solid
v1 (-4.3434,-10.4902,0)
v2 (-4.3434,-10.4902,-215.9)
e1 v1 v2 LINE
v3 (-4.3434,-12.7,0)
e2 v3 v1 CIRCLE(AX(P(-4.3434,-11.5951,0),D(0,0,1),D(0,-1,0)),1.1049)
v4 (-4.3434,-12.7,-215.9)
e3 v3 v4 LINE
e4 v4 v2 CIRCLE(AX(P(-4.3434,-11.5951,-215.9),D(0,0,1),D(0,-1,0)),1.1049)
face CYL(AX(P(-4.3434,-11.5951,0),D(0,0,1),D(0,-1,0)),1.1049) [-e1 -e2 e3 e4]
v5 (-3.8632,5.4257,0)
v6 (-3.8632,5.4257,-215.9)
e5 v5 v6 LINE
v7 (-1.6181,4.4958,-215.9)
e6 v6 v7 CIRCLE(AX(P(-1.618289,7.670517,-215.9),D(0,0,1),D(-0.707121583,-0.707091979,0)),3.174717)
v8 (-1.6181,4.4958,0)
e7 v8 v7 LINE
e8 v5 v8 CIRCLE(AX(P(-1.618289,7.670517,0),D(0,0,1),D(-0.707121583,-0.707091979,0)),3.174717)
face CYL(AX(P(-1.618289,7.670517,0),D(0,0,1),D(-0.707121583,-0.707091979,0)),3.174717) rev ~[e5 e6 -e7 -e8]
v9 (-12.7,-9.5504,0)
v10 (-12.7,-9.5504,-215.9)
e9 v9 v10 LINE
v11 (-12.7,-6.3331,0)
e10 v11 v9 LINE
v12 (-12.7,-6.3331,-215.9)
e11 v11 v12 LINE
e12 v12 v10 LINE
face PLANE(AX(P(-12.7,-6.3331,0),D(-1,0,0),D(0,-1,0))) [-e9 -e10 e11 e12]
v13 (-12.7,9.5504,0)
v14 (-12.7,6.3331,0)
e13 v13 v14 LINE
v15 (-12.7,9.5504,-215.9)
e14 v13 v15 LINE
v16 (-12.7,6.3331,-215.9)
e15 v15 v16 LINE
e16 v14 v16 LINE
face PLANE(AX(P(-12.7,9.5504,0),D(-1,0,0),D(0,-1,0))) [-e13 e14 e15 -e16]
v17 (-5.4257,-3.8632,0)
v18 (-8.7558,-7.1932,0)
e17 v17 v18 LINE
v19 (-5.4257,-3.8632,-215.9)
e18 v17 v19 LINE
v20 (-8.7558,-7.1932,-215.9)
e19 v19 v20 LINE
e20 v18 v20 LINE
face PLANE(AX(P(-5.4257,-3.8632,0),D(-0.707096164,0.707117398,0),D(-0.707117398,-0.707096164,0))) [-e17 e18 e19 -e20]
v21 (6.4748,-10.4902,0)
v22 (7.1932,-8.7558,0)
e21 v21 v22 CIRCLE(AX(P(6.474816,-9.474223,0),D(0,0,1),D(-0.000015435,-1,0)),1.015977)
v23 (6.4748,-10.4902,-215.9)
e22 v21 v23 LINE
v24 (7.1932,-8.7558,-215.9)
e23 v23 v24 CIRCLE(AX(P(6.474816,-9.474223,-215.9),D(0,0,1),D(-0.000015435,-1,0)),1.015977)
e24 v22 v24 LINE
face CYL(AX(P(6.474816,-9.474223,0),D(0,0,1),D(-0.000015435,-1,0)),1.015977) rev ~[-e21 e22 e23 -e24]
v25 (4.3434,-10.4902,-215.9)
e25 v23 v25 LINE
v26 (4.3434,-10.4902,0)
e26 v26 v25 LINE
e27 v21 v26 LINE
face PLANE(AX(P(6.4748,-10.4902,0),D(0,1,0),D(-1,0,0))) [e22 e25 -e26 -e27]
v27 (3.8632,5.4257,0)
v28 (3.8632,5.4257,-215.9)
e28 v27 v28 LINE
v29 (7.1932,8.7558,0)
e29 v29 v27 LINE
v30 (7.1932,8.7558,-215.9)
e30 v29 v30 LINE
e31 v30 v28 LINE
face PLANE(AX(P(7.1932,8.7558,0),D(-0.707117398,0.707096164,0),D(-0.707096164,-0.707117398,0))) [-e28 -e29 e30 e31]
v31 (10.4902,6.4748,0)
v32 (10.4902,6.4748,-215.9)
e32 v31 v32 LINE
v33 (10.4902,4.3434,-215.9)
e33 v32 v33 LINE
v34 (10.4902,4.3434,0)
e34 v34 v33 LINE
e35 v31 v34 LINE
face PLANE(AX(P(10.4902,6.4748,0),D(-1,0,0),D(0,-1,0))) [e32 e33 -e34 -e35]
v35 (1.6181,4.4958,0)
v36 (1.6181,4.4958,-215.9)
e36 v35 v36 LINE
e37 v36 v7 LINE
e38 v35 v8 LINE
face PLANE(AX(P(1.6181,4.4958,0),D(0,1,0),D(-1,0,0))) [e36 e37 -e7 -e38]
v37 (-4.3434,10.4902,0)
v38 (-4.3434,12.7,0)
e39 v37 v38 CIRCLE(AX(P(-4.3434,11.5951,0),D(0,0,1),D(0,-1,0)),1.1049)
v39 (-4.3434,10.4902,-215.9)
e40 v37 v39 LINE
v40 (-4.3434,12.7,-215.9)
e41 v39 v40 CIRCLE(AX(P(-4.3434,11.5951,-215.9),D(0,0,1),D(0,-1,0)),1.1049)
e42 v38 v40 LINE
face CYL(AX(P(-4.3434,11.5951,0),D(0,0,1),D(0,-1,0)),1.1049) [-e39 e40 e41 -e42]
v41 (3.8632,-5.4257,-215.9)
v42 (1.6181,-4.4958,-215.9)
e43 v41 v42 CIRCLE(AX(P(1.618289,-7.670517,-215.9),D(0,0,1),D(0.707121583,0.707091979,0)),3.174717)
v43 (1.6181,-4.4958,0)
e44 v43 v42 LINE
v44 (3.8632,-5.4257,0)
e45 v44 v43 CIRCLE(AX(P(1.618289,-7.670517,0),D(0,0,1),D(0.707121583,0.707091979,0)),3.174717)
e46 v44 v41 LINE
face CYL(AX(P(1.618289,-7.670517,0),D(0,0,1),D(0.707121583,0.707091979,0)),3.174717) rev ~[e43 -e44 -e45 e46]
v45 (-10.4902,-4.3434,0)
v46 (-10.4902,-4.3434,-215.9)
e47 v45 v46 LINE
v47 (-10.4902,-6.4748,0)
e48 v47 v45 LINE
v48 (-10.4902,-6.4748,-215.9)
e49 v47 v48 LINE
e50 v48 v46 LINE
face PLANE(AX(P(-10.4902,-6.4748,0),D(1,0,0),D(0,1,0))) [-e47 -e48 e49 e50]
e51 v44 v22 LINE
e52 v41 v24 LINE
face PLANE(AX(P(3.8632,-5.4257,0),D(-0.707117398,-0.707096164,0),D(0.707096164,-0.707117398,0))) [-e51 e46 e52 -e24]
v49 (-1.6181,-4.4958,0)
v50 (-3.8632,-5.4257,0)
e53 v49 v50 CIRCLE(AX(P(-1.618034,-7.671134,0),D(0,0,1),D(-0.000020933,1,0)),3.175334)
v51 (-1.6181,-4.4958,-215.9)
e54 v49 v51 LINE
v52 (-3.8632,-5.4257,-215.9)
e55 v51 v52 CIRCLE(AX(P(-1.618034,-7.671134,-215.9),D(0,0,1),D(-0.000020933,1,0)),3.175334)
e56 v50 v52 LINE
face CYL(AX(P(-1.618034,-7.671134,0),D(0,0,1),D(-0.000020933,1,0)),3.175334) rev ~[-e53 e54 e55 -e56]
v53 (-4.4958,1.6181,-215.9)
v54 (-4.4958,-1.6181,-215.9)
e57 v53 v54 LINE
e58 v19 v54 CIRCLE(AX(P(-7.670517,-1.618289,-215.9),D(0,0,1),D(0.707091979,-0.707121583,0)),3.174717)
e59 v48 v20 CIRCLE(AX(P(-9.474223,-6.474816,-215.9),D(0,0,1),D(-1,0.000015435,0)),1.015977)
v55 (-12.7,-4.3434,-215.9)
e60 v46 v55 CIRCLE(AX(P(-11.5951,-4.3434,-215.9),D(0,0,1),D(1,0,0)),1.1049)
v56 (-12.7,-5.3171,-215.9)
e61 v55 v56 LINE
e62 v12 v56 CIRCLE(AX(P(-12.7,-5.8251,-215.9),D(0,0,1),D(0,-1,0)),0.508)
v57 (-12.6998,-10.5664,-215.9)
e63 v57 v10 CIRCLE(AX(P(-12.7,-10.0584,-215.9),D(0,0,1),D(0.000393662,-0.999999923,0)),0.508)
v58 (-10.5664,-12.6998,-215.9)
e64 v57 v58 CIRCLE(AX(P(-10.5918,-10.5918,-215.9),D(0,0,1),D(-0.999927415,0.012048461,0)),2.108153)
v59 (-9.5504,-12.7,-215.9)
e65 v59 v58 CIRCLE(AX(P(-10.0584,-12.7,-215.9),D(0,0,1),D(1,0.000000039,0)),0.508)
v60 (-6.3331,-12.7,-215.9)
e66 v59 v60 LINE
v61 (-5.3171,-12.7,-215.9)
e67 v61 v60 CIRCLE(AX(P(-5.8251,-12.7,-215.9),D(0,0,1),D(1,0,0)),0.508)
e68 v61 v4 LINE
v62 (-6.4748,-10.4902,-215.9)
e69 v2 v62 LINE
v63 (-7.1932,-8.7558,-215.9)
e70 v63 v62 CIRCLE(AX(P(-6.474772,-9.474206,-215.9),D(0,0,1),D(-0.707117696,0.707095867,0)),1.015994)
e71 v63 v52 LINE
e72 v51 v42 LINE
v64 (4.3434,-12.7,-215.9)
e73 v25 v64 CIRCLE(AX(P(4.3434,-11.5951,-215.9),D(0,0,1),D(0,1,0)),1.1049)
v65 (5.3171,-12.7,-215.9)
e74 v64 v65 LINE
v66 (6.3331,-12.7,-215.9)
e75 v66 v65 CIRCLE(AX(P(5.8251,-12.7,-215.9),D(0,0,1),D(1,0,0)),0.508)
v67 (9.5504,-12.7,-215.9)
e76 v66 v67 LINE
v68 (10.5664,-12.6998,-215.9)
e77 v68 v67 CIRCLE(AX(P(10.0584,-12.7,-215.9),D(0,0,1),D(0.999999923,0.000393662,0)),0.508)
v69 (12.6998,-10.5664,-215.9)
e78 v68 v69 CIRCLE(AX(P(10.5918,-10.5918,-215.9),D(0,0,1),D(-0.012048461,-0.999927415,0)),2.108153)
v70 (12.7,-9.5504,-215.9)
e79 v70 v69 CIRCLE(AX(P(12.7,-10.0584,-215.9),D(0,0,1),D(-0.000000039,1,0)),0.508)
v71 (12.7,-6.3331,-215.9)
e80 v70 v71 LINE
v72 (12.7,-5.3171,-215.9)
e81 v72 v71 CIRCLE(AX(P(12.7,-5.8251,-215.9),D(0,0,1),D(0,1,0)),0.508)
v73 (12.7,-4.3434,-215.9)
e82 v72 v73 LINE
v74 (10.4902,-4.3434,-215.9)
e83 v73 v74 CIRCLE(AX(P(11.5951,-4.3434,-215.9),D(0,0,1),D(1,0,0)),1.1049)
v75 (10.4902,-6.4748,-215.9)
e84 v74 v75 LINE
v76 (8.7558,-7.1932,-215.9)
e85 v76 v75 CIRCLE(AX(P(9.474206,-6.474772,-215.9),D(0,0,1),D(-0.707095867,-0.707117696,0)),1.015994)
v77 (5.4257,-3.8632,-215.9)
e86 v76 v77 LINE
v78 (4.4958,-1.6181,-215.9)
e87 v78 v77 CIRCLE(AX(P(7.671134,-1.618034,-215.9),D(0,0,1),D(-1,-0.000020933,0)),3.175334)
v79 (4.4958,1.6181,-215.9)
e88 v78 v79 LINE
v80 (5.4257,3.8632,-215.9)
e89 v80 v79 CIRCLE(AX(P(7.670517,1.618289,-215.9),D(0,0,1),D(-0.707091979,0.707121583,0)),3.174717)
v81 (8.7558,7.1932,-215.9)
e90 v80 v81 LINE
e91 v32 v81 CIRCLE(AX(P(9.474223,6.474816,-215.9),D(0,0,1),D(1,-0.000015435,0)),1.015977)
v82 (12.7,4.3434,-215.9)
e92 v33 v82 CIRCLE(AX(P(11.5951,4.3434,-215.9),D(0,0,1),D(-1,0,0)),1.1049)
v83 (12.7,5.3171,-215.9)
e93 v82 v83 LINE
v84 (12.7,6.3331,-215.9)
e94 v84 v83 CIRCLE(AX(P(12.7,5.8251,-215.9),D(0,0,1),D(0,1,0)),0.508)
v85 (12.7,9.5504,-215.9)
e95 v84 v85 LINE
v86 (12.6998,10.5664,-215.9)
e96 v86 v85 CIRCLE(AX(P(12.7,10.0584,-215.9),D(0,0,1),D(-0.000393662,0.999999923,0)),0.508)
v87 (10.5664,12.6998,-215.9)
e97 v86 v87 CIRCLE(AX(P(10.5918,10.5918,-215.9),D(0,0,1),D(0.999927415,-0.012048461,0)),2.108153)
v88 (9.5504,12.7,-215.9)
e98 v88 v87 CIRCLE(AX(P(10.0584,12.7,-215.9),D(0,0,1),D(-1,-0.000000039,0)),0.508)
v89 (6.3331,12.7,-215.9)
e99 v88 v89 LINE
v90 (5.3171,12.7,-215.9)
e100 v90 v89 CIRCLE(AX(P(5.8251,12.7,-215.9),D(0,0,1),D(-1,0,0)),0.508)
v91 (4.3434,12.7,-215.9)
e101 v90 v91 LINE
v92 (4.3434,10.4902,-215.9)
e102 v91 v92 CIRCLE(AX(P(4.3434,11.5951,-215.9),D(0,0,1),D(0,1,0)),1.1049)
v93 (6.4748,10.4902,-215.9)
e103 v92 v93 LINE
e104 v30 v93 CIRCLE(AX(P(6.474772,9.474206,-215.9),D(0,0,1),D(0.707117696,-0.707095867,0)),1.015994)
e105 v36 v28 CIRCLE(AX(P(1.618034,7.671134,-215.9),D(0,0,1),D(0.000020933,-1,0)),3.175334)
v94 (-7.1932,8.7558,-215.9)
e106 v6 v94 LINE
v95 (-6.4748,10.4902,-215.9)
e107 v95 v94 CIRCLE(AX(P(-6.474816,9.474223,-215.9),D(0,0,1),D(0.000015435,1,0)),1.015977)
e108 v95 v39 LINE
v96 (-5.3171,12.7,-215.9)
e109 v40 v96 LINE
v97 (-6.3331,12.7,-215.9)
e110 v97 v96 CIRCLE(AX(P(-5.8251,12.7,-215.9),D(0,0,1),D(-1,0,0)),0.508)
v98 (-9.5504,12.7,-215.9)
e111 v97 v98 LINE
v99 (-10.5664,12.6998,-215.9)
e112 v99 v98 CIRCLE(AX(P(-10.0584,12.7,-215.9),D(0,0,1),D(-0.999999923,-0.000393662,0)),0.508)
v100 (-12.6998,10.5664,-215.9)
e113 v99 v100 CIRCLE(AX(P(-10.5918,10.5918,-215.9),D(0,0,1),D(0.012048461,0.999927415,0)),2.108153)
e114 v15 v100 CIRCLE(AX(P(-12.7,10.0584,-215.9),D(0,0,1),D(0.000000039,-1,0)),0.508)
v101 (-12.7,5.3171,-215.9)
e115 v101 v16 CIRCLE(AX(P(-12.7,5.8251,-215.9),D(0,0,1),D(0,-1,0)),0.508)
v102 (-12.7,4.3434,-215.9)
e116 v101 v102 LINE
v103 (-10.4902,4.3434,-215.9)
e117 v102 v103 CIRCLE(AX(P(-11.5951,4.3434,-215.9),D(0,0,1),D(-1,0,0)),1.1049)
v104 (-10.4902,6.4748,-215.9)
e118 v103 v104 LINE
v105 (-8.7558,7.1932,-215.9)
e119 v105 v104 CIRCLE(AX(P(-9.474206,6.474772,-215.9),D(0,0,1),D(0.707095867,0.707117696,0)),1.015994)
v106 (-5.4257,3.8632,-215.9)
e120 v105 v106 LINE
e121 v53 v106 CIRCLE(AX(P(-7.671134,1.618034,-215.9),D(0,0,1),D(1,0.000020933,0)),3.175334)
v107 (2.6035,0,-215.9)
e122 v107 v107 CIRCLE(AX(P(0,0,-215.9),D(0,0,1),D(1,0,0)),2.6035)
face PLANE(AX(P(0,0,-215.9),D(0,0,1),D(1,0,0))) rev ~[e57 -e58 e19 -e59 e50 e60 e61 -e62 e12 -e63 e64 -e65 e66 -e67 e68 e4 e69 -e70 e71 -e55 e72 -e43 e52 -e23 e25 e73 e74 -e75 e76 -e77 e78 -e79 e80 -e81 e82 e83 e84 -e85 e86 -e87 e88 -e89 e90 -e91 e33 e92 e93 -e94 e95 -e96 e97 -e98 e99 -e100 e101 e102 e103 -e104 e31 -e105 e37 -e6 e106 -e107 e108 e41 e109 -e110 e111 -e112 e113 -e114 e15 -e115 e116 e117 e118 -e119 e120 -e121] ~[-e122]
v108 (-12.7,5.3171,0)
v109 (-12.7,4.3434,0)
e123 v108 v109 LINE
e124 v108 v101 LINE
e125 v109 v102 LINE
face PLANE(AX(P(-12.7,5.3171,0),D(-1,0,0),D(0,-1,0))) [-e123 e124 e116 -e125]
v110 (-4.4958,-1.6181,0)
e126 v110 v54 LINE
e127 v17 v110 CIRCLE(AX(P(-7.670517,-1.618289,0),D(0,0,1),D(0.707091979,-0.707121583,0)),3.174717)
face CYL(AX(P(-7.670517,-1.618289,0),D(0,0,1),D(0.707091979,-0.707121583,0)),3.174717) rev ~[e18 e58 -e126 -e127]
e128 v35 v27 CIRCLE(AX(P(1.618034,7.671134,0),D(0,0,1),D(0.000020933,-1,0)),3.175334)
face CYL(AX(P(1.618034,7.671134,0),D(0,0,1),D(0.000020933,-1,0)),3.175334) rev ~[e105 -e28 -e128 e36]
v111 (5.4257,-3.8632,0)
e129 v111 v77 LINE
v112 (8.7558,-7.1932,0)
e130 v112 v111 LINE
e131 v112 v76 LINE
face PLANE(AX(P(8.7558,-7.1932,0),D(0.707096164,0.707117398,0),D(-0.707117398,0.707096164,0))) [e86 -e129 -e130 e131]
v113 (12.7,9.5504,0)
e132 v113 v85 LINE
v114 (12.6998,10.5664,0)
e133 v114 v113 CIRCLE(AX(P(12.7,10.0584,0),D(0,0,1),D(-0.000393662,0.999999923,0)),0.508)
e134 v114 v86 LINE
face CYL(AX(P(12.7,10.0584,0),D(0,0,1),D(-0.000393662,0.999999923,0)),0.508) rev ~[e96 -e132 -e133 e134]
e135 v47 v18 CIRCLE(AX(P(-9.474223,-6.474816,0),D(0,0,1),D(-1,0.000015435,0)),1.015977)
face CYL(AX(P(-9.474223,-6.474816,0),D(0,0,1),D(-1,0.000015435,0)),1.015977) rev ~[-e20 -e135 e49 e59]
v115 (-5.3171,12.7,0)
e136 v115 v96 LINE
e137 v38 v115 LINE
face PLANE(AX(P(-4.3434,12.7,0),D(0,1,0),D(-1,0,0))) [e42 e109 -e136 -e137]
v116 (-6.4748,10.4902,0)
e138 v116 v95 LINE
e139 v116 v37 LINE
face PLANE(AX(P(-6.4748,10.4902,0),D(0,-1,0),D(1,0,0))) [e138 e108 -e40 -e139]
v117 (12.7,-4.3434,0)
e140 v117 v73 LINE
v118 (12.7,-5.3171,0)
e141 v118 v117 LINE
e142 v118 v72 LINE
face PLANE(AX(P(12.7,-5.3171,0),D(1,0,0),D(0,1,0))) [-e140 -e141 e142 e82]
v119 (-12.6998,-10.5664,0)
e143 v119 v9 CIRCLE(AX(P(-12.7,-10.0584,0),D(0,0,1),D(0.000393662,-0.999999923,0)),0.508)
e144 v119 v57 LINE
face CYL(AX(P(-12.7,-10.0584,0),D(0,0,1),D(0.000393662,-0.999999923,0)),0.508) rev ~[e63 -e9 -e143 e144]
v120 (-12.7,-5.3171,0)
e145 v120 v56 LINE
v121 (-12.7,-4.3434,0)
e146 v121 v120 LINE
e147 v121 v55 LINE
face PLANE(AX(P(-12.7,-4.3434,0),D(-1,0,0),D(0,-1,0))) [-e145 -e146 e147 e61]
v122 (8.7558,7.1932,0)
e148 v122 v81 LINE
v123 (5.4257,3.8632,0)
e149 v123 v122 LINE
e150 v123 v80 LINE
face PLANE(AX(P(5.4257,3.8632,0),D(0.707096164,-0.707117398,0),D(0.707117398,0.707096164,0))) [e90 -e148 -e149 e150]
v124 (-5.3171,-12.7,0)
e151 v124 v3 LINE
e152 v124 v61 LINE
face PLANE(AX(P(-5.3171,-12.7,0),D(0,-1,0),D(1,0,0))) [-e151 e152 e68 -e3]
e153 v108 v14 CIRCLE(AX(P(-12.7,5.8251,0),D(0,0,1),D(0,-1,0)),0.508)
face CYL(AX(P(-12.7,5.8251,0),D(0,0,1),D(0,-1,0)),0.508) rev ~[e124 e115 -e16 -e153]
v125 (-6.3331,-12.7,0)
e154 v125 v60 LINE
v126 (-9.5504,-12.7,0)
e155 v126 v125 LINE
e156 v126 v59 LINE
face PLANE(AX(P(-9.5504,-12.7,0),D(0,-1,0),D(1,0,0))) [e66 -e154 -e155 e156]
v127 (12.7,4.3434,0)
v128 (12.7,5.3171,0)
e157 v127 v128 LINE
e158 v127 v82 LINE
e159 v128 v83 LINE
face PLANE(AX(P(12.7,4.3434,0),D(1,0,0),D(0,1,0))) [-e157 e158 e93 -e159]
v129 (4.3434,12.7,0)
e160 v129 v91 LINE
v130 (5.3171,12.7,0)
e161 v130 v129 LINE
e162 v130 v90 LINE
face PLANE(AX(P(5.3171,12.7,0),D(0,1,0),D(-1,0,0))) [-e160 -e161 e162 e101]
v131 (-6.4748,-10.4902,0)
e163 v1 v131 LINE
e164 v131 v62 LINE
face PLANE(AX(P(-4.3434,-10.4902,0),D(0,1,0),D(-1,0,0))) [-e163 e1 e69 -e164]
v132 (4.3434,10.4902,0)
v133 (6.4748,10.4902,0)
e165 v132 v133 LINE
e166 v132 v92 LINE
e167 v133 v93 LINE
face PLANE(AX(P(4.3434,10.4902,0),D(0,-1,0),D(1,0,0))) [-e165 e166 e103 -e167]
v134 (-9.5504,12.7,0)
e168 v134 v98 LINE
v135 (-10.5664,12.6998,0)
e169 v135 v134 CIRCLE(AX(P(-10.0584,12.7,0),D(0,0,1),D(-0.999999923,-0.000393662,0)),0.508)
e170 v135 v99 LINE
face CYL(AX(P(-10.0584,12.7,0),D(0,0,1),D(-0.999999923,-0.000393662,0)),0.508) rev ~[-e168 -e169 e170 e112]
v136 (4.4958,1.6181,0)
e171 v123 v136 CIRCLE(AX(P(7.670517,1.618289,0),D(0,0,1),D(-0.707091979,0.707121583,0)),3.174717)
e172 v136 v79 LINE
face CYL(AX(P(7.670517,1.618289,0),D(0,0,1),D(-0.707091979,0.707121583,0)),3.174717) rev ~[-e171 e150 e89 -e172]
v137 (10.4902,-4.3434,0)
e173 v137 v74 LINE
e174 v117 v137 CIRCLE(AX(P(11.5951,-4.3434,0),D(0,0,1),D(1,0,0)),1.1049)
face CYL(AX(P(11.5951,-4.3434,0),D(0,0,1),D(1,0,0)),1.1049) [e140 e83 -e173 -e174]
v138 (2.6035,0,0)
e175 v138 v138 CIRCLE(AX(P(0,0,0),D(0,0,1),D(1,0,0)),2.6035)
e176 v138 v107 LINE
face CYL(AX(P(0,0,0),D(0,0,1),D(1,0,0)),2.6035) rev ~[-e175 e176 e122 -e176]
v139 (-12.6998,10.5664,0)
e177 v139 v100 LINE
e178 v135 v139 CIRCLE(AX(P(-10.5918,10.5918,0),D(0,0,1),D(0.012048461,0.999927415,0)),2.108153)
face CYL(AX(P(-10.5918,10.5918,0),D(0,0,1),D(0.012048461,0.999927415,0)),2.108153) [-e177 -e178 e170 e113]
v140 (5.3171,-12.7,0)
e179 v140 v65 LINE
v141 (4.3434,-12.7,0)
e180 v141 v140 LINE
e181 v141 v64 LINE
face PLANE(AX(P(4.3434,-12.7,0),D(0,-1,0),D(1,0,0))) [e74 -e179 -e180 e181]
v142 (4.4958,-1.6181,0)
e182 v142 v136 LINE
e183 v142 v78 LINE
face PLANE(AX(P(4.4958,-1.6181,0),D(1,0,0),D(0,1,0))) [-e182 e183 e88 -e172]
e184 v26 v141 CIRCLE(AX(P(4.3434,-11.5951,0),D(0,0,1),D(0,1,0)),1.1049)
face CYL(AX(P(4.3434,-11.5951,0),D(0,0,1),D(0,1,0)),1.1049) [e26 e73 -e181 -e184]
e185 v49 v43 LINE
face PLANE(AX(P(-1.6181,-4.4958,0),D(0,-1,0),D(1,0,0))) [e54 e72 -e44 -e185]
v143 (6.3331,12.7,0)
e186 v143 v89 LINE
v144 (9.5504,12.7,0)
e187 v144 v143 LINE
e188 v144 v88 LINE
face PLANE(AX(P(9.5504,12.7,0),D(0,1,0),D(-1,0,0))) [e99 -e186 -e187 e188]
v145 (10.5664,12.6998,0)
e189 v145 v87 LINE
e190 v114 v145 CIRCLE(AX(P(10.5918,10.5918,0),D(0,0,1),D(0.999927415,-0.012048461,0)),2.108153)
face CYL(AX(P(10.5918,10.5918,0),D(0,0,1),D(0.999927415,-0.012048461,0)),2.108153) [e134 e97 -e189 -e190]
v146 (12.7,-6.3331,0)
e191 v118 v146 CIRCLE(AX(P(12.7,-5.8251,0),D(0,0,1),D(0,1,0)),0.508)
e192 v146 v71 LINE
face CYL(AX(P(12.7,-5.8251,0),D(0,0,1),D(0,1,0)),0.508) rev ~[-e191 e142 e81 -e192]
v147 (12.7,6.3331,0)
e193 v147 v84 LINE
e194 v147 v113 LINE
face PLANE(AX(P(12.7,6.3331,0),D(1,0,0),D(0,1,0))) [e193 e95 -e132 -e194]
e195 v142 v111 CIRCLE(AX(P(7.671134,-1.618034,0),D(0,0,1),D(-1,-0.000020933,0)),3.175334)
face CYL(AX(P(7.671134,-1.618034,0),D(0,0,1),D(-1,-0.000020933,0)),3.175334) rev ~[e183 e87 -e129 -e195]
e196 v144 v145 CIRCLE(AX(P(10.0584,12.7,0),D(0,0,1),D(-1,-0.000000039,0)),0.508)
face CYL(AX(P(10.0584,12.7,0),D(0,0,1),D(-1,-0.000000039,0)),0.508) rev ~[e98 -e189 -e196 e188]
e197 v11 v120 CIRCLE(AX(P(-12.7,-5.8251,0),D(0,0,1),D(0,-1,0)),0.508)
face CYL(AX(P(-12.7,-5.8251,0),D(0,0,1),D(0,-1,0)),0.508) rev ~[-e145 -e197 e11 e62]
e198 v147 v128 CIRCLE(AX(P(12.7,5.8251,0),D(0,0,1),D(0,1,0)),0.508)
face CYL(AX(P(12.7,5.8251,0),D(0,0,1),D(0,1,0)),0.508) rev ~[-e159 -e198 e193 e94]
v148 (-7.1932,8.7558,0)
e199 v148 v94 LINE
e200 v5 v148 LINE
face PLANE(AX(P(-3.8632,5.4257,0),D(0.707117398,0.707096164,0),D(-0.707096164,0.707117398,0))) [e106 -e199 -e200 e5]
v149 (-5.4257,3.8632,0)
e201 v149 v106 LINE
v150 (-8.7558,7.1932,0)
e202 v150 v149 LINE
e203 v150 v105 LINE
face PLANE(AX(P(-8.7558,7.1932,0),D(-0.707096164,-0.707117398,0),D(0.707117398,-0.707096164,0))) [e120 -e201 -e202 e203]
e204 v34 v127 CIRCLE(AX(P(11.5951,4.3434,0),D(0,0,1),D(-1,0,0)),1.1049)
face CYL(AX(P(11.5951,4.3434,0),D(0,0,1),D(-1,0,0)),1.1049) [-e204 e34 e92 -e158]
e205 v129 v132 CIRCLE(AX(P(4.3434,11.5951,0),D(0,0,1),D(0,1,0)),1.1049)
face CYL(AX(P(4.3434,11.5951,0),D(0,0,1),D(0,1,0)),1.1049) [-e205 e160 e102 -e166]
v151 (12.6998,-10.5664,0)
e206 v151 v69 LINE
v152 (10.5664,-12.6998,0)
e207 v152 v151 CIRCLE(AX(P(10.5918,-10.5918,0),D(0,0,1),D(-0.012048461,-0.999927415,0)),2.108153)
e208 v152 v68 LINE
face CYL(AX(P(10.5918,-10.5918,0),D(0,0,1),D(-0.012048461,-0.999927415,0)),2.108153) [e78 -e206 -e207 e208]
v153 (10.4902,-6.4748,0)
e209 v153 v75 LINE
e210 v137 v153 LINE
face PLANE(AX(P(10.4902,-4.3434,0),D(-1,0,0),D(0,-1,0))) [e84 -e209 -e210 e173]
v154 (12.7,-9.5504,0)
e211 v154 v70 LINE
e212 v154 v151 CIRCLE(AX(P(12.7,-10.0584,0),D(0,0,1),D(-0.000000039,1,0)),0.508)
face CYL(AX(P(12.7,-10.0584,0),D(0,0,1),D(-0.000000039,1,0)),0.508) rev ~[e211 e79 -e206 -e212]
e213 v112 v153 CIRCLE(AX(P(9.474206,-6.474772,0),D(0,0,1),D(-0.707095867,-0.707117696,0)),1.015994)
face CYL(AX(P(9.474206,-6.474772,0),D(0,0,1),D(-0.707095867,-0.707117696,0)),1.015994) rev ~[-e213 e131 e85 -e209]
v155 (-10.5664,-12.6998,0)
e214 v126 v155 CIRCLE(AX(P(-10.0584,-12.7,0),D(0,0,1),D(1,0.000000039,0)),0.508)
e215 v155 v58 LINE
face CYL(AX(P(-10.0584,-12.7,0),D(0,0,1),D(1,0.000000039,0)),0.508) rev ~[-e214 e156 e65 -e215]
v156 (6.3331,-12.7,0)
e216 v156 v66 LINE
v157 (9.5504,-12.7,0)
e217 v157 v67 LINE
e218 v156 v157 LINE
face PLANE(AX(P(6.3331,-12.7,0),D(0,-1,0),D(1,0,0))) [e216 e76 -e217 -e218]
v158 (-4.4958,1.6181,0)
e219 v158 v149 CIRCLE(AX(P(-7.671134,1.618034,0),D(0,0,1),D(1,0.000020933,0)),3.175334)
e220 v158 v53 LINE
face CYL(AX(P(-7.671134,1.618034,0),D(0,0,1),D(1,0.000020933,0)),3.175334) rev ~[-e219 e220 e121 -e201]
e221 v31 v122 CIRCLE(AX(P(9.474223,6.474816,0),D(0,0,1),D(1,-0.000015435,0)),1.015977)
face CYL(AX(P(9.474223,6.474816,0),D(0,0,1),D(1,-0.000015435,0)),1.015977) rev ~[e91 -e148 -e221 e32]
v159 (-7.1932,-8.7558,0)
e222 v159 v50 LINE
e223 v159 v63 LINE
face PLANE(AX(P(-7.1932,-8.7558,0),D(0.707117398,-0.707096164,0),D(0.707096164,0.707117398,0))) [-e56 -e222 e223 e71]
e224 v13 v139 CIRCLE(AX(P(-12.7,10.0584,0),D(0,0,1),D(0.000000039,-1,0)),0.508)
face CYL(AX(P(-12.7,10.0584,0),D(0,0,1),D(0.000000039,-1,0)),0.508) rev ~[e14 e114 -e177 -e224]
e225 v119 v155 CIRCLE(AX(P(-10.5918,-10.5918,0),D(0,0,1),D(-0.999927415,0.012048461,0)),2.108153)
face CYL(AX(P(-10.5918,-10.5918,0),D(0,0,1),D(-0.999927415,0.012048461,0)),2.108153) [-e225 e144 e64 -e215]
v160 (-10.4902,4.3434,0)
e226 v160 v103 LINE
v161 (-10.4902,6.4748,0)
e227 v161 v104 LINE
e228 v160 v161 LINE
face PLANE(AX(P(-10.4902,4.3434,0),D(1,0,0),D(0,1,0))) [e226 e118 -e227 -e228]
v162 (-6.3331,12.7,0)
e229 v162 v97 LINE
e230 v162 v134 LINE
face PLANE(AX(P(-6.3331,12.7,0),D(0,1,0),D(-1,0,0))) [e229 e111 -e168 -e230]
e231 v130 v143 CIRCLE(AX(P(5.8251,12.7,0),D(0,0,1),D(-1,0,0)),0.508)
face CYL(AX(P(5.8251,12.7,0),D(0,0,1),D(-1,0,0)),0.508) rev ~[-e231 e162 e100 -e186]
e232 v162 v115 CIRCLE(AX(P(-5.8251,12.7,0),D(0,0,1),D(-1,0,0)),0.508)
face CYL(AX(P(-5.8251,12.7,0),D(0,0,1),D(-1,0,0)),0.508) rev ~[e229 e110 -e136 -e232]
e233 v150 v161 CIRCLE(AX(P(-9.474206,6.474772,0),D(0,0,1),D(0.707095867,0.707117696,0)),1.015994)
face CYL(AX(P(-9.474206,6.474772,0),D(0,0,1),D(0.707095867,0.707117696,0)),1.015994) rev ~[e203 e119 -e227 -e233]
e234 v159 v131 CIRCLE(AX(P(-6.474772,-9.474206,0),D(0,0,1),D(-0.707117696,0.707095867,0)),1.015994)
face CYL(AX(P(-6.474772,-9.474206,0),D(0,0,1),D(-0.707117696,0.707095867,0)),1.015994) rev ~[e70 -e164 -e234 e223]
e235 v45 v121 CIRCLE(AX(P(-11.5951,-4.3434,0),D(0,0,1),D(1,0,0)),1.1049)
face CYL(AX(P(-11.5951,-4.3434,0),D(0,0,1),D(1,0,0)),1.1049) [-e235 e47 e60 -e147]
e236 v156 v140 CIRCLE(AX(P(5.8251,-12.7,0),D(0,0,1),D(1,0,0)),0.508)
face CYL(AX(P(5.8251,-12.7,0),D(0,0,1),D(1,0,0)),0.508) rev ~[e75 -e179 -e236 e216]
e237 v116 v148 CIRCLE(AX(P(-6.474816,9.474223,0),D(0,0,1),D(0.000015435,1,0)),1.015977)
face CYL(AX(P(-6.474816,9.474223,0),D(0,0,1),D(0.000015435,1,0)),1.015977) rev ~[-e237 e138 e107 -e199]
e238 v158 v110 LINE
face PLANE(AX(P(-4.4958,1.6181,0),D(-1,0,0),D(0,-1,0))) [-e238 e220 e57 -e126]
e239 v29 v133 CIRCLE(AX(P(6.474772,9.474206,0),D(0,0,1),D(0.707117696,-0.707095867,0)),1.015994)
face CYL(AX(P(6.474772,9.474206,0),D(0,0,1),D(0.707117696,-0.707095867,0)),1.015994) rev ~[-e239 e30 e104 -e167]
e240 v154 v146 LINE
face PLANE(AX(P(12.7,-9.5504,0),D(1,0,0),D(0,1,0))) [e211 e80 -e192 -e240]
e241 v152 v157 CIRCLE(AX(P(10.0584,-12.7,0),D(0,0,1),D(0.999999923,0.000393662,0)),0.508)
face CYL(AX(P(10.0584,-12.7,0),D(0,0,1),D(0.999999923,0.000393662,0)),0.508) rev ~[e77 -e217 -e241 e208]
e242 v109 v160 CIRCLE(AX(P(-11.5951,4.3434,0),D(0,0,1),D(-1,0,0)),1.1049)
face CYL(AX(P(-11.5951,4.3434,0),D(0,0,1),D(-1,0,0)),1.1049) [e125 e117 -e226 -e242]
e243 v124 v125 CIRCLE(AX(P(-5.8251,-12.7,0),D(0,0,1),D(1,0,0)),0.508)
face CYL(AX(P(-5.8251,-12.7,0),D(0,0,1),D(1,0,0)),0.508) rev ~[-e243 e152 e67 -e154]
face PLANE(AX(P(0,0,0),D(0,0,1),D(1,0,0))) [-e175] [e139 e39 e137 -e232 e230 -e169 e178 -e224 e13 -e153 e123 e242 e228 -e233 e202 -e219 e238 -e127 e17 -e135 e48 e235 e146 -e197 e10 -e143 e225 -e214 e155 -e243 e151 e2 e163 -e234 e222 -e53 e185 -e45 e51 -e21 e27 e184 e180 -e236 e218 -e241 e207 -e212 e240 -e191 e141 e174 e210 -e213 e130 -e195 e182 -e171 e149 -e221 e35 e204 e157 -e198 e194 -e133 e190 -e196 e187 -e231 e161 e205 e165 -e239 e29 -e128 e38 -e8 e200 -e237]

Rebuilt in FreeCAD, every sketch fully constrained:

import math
import FreeCAD as App
import Part
import Sketcher
from FreeCAD import Vector
Q = App.Units.Quantity

doc = App.newDocument("Part")
params = doc.addObject("Spreadsheet::Sheet", "Params")
for row, (alias, value) in enumerate([
    ("sketch1_radius", "0.02 in"),
    ("sketch1_radius2", "0.04 in"),
    ("sketch1_diameter", "0.205 in"),
    ("sketch1_radius3", "0.083 in"),
    ("sketch1_radius4", "0.125 in"),
    ("pad1_length", "8.5 in"),
], start=1):
    params.set(f"A{row}", alias)
    params.set(f"B{row}", "=" + value)
    params.setAlias(f"B{row}", alias)

body = doc.addObject("PartDesign::Body", "Body")

# Sketch on XY plane
sketch1 = body.newObject("Sketcher::SketchObject", "Sketch")
sketch1.AttachmentSupport = (doc.getObject("XY_Plane"), [""])
sketch1.MapMode = "FlatFace"
sketch1.addGeometry([
    Part.ArcOfCircle(Part.Circle(Vector(-12.7, -10.1, 0), Vector(0, 0, 1), 0.5), math.radians(-90), math.radians(90)),  # 0
    Part.ArcOfCircle(Part.Circle(Vector(-10.6, -10.6, 0), Vector(0, 0, 1), 2.1), math.radians(179), math.radians(271)),  # 1
    Part.ArcOfCircle(Part.Circle(Vector(-10.1, -12.7, 0), Vector(0, 0, 1), 0.5), math.radians(0), math.radians(180)),  # 2
    Part.LineSegment(Vector(-9.6, -12.7, 0), Vector(-6.3, -12.7, 0)),  # 3
    Part.ArcOfCircle(Part.Circle(Vector(-5.8, -12.7, 0), Vector(0, 0, 1), 0.5), math.radians(0), math.radians(180)),  # 4
    Part.LineSegment(Vector(-5.3, -12.7, 0), Vector(-4.3, -12.7, 0)),  # 5
    Part.ArcOfCircle(Part.Circle(Vector(-4.3, -11.6, 0), Vector(0, 0, 1), 1.1), math.radians(-90), math.radians(90)),  # 6
    Part.LineSegment(Vector(-4.3, -10.5, 0), Vector(-6.5, -10.5, 0)),  # 7
    Part.ArcOfCircle(Part.Circle(Vector(-6.5, -9.5, 0), Vector(0, 0, 1), 1), math.radians(135), math.radians(270)),  # 8
    Part.LineSegment(Vector(-7.2, -8.8, 0), Vector(-3.9, -5.4, 0)),  # 9
    Part.ArcOfCircle(Part.Circle(Vector(-1.6, -7.7, 0), Vector(0, 0, 1), 3.2), math.radians(90), math.radians(135)),  # 10
    Part.LineSegment(Vector(-1.6, -4.5, 0), Vector(1.6, -4.5, 0)),  # 11
    Part.ArcOfCircle(Part.Circle(Vector(1.6, -7.7, 0), Vector(0, 0, 1), 3.2), math.radians(45), math.radians(90)),  # 12
    Part.LineSegment(Vector(3.9, -5.4, 0), Vector(7.2, -8.8, 0)),  # 13
    Part.ArcOfCircle(Part.Circle(Vector(6.5, -9.5, 0), Vector(0, 0, 1), 1), math.radians(-90), math.radians(45)),  # 14
    Part.LineSegment(Vector(6.5, -10.5, 0), Vector(4.3, -10.5, 0)),  # 15
    Part.ArcOfCircle(Part.Circle(Vector(4.3, -11.6, 0), Vector(0, 0, 1), 1.1), math.radians(90), math.radians(270)),  # 16
    Part.LineSegment(Vector(4.3, -12.7, 0), Vector(5.3, -12.7, 0)),  # 17
    Part.ArcOfCircle(Part.Circle(Vector(5.8, -12.7, 0), Vector(0, 0, 1), 0.5), math.radians(0), math.radians(180)),  # 18
    Part.LineSegment(Vector(6.3, -12.7, 0), Vector(9.6, -12.7, 0)),  # 19
    Part.ArcOfCircle(Part.Circle(Vector(10.1, -12.7, 0), Vector(0, 0, 1), 0.5), math.radians(0), math.radians(180)),  # 20
    Part.ArcOfCircle(Part.Circle(Vector(10.6, -10.6, 0), Vector(0, 0, 1), 2.1), math.radians(-91), math.radians(1)),  # 21
    Part.ArcOfCircle(Part.Circle(Vector(12.7, -10.1, 0), Vector(0, 0, 1), 0.5), math.radians(90), math.radians(270)),  # 22
    Part.LineSegment(Vector(12.7, -9.6, 0), Vector(12.7, -6.3, 0)),  # 23
    Part.ArcOfCircle(Part.Circle(Vector(12.7, -5.8, 0), Vector(0, 0, 1), 0.5), math.radians(90), math.radians(270)),  # 24
    Part.LineSegment(Vector(12.7, -5.3, 0), Vector(12.7, -4.3, 0)),  # 25
    Part.ArcOfCircle(Part.Circle(Vector(11.6, -4.3, 0), Vector(0, 0, 1), 1.1), math.radians(0), math.radians(180)),  # 26
    Part.LineSegment(Vector(10.5, -4.3, 0), Vector(10.5, -6.5, 0)),  # 27
    Part.ArcOfCircle(Part.Circle(Vector(9.5, -6.5, 0), Vector(0, 0, 1), 1), math.radians(-135), math.radians(0)),  # 28
    Part.LineSegment(Vector(8.8, -7.2, 0), Vector(5.4, -3.9, 0)),  # 29
    Part.ArcOfCircle(Part.Circle(Vector(7.7, -1.6, 0), Vector(0, 0, 1), 3.2), math.radians(180), math.radians(225)),  # 30
    Part.LineSegment(Vector(4.5, -1.6, 0), Vector(4.5, 1.6, 0)),  # 31
    Part.ArcOfCircle(Part.Circle(Vector(7.7, 1.6, 0), Vector(0, 0, 1), 3.2), math.radians(135), math.radians(180)),  # 32
    Part.LineSegment(Vector(5.4, 3.9, 0), Vector(8.8, 7.2, 0)),  # 33
    Part.ArcOfCircle(Part.Circle(Vector(9.5, 6.5, 0), Vector(0, 0, 1), 1), math.radians(0), math.radians(135)),  # 34
    Part.LineSegment(Vector(10.5, 6.5, 0), Vector(10.5, 4.3, 0)),  # 35
    Part.ArcOfCircle(Part.Circle(Vector(11.6, 4.3, 0), Vector(0, 0, 1), 1.1), math.radians(180), math.radians(360)),  # 36
    Part.LineSegment(Vector(12.7, 4.3, 0), Vector(12.7, 5.3, 0)),  # 37
    Part.ArcOfCircle(Part.Circle(Vector(12.7, 5.8, 0), Vector(0, 0, 1), 0.5), math.radians(90), math.radians(270)),  # 38
    Part.LineSegment(Vector(12.7, 6.3, 0), Vector(12.7, 9.6, 0)),  # 39
    Part.ArcOfCircle(Part.Circle(Vector(12.7, 10.1, 0), Vector(0, 0, 1), 0.5), math.radians(90), math.radians(270)),  # 40
    Part.ArcOfCircle(Part.Circle(Vector(10.6, 10.6, 0), Vector(0, 0, 1), 2.1), math.radians(-1), math.radians(91)),  # 41
    Part.ArcOfCircle(Part.Circle(Vector(10.1, 12.7, 0), Vector(0, 0, 1), 0.5), math.radians(180), math.radians(360)),  # 42
    Part.LineSegment(Vector(9.6, 12.7, 0), Vector(6.3, 12.7, 0)),  # 43
    Part.ArcOfCircle(Part.Circle(Vector(5.8, 12.7, 0), Vector(0, 0, 1), 0.5), math.radians(180), math.radians(360)),  # 44
    Part.LineSegment(Vector(5.3, 12.7, 0), Vector(4.3, 12.7, 0)),  # 45
    Part.ArcOfCircle(Part.Circle(Vector(4.3, 11.6, 0), Vector(0, 0, 1), 1.1), math.radians(90), math.radians(270)),  # 46
    Part.LineSegment(Vector(4.3, 10.5, 0), Vector(6.5, 10.5, 0)),  # 47
    Part.ArcOfCircle(Part.Circle(Vector(6.5, 9.5, 0), Vector(0, 0, 1), 1), math.radians(-45), math.radians(90)),  # 48
    Part.LineSegment(Vector(7.2, 8.8, 0), Vector(3.9, 5.4, 0)),  # 49
    Part.ArcOfCircle(Part.Circle(Vector(1.6, 7.7, 0), Vector(0, 0, 1), 3.2), math.radians(-90), math.radians(-45)),  # 50
    Part.LineSegment(Vector(1.6, 4.5, 0), Vector(-1.6, 4.5, 0)),  # 51
    Part.ArcOfCircle(Part.Circle(Vector(-1.6, 7.7, 0), Vector(0, 0, 1), 3.2), math.radians(-135), math.radians(-90)),  # 52
    Part.LineSegment(Vector(-3.9, 5.4, 0), Vector(-7.2, 8.8, 0)),  # 53
    Part.ArcOfCircle(Part.Circle(Vector(-6.5, 9.5, 0), Vector(0, 0, 1), 1), math.radians(90), math.radians(225)),  # 54
    Part.LineSegment(Vector(-6.5, 10.5, 0), Vector(-4.3, 10.5, 0)),  # 55
    Part.ArcOfCircle(Part.Circle(Vector(-4.3, 11.6, 0), Vector(0, 0, 1), 1.1), math.radians(-90), math.radians(90)),  # 56
    Part.LineSegment(Vector(-4.3, 12.7, 0), Vector(-5.3, 12.7, 0)),  # 57
    Part.ArcOfCircle(Part.Circle(Vector(-5.8, 12.7, 0), Vector(0, 0, 1), 0.5), math.radians(180), math.radians(360)),  # 58
    Part.LineSegment(Vector(-6.3, 12.7, 0), Vector(-9.6, 12.7, 0)),  # 59
    Part.ArcOfCircle(Part.Circle(Vector(-10.1, 12.7, 0), Vector(0, 0, 1), 0.5), math.radians(-180), math.radians(0)),  # 60
    Part.ArcOfCircle(Part.Circle(Vector(-10.6, 10.6, 0), Vector(0, 0, 1), 2.1), math.radians(89), math.radians(181)),  # 61
    Part.ArcOfCircle(Part.Circle(Vector(-12.7, 10.1, 0), Vector(0, 0, 1), 0.5), math.radians(-90), math.radians(90)),  # 62
    Part.LineSegment(Vector(-12.7, 9.6, 0), Vector(-12.7, 6.3, 0)),  # 63
    Part.ArcOfCircle(Part.Circle(Vector(-12.7, 5.8, 0), Vector(0, 0, 1), 0.5), math.radians(-90), math.radians(90)),  # 64
    Part.LineSegment(Vector(-12.7, 5.3, 0), Vector(-12.7, 4.3, 0)),  # 65
    Part.ArcOfCircle(Part.Circle(Vector(-11.6, 4.3, 0), Vector(0, 0, 1), 1.1), math.radians(180), math.radians(360)),  # 66
    Part.LineSegment(Vector(-10.5, 4.3, 0), Vector(-10.5, 6.5, 0)),  # 67
    Part.ArcOfCircle(Part.Circle(Vector(-9.5, 6.5, 0), Vector(0, 0, 1), 1), math.radians(45), math.radians(180)),  # 68
    Part.LineSegment(Vector(-8.8, 7.2, 0), Vector(-5.4, 3.9, 0)),  # 69
    Part.ArcOfCircle(Part.Circle(Vector(-7.7, 1.6, 0), Vector(0, 0, 1), 3.2), math.radians(0), math.radians(45)),  # 70
    Part.LineSegment(Vector(-4.5, 1.6, 0), Vector(-4.5, -1.6, 0)),  # 71
    Part.ArcOfCircle(Part.Circle(Vector(-7.7, -1.6, 0), Vector(0, 0, 1), 3.2), math.radians(-45), math.radians(0)),  # 72
    Part.LineSegment(Vector(-5.4, -3.9, 0), Vector(-8.8, -7.2, 0)),  # 73
    Part.ArcOfCircle(Part.Circle(Vector(-9.5, -6.5, 0), Vector(0, 0, 1), 1), math.radians(180), math.radians(315)),  # 74
    Part.LineSegment(Vector(-10.5, -6.5, 0), Vector(-10.5, -4.3, 0)),  # 75
    Part.ArcOfCircle(Part.Circle(Vector(-11.6, -4.3, 0), Vector(0, 0, 1), 1.1), math.radians(0), math.radians(180)),  # 76
    Part.LineSegment(Vector(-12.7, -4.3, 0), Vector(-12.7, -5.3, 0)),  # 77
    Part.ArcOfCircle(Part.Circle(Vector(-12.7, -5.8, 0), Vector(0, 0, 1), 0.5), math.radians(-90), math.radians(90)),  # 78
    Part.LineSegment(Vector(-12.7, -6.3, 0), Vector(-12.7, -9.6, 0)),  # 79
    Part.Circle(Vector(0, 0, 0), Vector(0, 0, 1), 2.6),  # 80
], False)
sketch1.addConstraint([
    Sketcher.Constraint("Coincident", 0, 1, 1, 1),
    Sketcher.Constraint("Coincident", 1, 2, 2, 2),
    Sketcher.Constraint("Coincident", 2, 1, 3, 1),
    Sketcher.Constraint("Coincident", 3, 2, 4, 2),
    Sketcher.Constraint("Coincident", 4, 1, 5, 1),
    Sketcher.Constraint("Tangent", 5, 2, 6, 1),
    Sketcher.Constraint("Tangent", 6, 2, 7, 1),
    Sketcher.Constraint("Tangent", 7, 2, 8, 2),
    Sketcher.Constraint("Tangent", 8, 1, 9, 1),
    Sketcher.Constraint("Tangent", 9, 2, 10, 2),
    Sketcher.Constraint("Tangent", 10, 1, 11, 1),
    Sketcher.Constraint("Tangent", 11, 2, 12, 2),
    Sketcher.Constraint("Tangent", 12, 1, 13, 1),
    Sketcher.Constraint("Tangent", 13, 2, 14, 2),
    Sketcher.Constraint("Tangent", 14, 1, 15, 1),
    Sketcher.Constraint("Tangent", 15, 2, 16, 1),
    Sketcher.Constraint("Tangent", 16, 2, 17, 1),
    Sketcher.Constraint("Coincident", 17, 2, 18, 2),
    Sketcher.Constraint("Coincident", 18, 1, 19, 1),
    Sketcher.Constraint("Coincident", 19, 2, 20, 2),
    Sketcher.Constraint("Coincident", 20, 1, 21, 1),
    Sketcher.Constraint("Coincident", 21, 2, 22, 2),
    Sketcher.Constraint("Coincident", 22, 1, 23, 1),
    Sketcher.Constraint("Coincident", 23, 2, 24, 2),
    Sketcher.Constraint("Coincident", 24, 1, 25, 1),
    Sketcher.Constraint("Tangent", 25, 2, 26, 1),
    Sketcher.Constraint("Tangent", 26, 2, 27, 1),
    Sketcher.Constraint("Tangent", 27, 2, 28, 2),
    Sketcher.Constraint("Tangent", 28, 1, 29, 1),
    Sketcher.Constraint("Tangent", 29, 2, 30, 2),
    Sketcher.Constraint("Tangent", 30, 1, 31, 1),
    Sketcher.Constraint("Tangent", 31, 2, 32, 2),
    Sketcher.Constraint("Tangent", 32, 1, 33, 1),
    Sketcher.Constraint("Tangent", 33, 2, 34, 2),
    Sketcher.Constraint("Tangent", 34, 1, 35, 1),
    Sketcher.Constraint("Tangent", 35, 2, 36, 1),
    Sketcher.Constraint("Tangent", 36, 2, 37, 1),
    Sketcher.Constraint("Coincident", 37, 2, 38, 2),
    Sketcher.Constraint("Coincident", 38, 1, 39, 1),
    Sketcher.Constraint("Coincident", 39, 2, 40, 2),
    Sketcher.Constraint("Coincident", 40, 1, 41, 1),
    Sketcher.Constraint("Coincident", 41, 2, 42, 2),
    Sketcher.Constraint("Coincident", 42, 1, 43, 1),
    Sketcher.Constraint("Coincident", 43, 2, 44, 2),
    Sketcher.Constraint("Coincident", 44, 1, 45, 1),
    Sketcher.Constraint("Tangent", 45, 2, 46, 1),
    Sketcher.Constraint("Tangent", 46, 2, 47, 1),
    Sketcher.Constraint("Tangent", 47, 2, 48, 2),
    Sketcher.Constraint("Tangent", 48, 1, 49, 1),
    Sketcher.Constraint("Tangent", 49, 2, 50, 2),
    Sketcher.Constraint("Tangent", 50, 1, 51, 1),
    Sketcher.Constraint("Tangent", 51, 2, 52, 2),
    Sketcher.Constraint("Tangent", 52, 1, 53, 1),
    Sketcher.Constraint("Tangent", 53, 2, 54, 2),
    Sketcher.Constraint("Tangent", 54, 1, 55, 1),
    Sketcher.Constraint("Tangent", 55, 2, 56, 1),
    Sketcher.Constraint("Tangent", 56, 2, 57, 1),
    Sketcher.Constraint("Coincident", 57, 2, 58, 2),
    Sketcher.Constraint("Coincident", 58, 1, 59, 1),
    Sketcher.Constraint("Coincident", 59, 2, 60, 2),
    Sketcher.Constraint("Coincident", 60, 1, 61, 1),
    Sketcher.Constraint("Coincident", 61, 2, 62, 2),
    Sketcher.Constraint("Coincident", 62, 1, 63, 1),
    Sketcher.Constraint("Coincident", 63, 2, 64, 2),
    Sketcher.Constraint("Coincident", 64, 1, 65, 1),
    Sketcher.Constraint("Tangent", 65, 2, 66, 1),
    Sketcher.Constraint("Tangent", 66, 2, 67, 1),
    Sketcher.Constraint("Tangent", 67, 2, 68, 2),
    Sketcher.Constraint("Tangent", 68, 1, 69, 1),
    Sketcher.Constraint("Tangent", 69, 2, 70, 2),
    Sketcher.Constraint("Tangent", 70, 1, 71, 1),
    Sketcher.Constraint("Tangent", 71, 2, 72, 2),
    Sketcher.Constraint("Tangent", 72, 1, 73, 1),
    Sketcher.Constraint("Tangent", 73, 2, 74, 2),
    Sketcher.Constraint("Tangent", 74, 1, 75, 1),
    Sketcher.Constraint("Tangent", 75, 2, 76, 1),
    Sketcher.Constraint("Tangent", 76, 2, 77, 1),
    Sketcher.Constraint("Coincident", 77, 2, 78, 2),
    Sketcher.Constraint("Coincident", 78, 1, 79, 1),
    Sketcher.Constraint("Coincident", 79, 2, 0, 2),
    Sketcher.Constraint("Horizontal", 3),
    Sketcher.Constraint("Horizontal", 5),
    Sketcher.Constraint("Horizontal", 7),
    Sketcher.Constraint("Horizontal", 11),
    Sketcher.Constraint("Horizontal", 15),
    Sketcher.Constraint("Horizontal", 17),
    Sketcher.Constraint("Horizontal", 19),
    Sketcher.Constraint("Vertical", 23),
    Sketcher.Constraint("Vertical", 25),
    Sketcher.Constraint("Vertical", 27),
    Sketcher.Constraint("Vertical", 31),
    Sketcher.Constraint("Vertical", 35),
    Sketcher.Constraint("Vertical", 37),
    Sketcher.Constraint("Vertical", 39),
    Sketcher.Constraint("Horizontal", 43),
    Sketcher.Constraint("Horizontal", 45),
    Sketcher.Constraint("Horizontal", 47),
    Sketcher.Constraint("Horizontal", 51),
    Sketcher.Constraint("Horizontal", 55),
    Sketcher.Constraint("Horizontal", 57),
    Sketcher.Constraint("Horizontal", 59),
    Sketcher.Constraint("Vertical", 63),
    Sketcher.Constraint("Vertical", 65),
    Sketcher.Constraint("Vertical", 67),
    Sketcher.Constraint("Vertical", 71),
    Sketcher.Constraint("Vertical", 75),
    Sketcher.Constraint("Vertical", 77),
    Sketcher.Constraint("Vertical", 79),
    Sketcher.Constraint("Coincident", 80, 3, -1, 1),
    Sketcher.Constraint("Equal", 0, 2),
    Sketcher.Constraint("Equal", 2, 4),
    Sketcher.Constraint("Equal", 10, 12),
    Sketcher.Constraint("Equal", 8, 14),
    Sketcher.Constraint("Equal", 6, 16),
    Sketcher.Constraint("Equal", 4, 18),
    Sketcher.Constraint("Equal", 18, 20),
    Sketcher.Constraint("Equal", 1, 21),
    Sketcher.Constraint("Equal", 20, 22),
    Sketcher.Constraint("Equal", 22, 24),
    Sketcher.Constraint("Equal", 16, 26),
    Sketcher.Constraint("Equal", 14, 28),
    Sketcher.Constraint("Equal", 12, 30),
    Sketcher.Constraint("Equal", 30, 32),
    Sketcher.Constraint("Equal", 28, 34),
    Sketcher.Constraint("Equal", 26, 36),
    Sketcher.Constraint("Equal", 24, 38),
    Sketcher.Constraint("Equal", 38, 40),
    Sketcher.Constraint("Equal", 21, 41),
    Sketcher.Constraint("Equal", 40, 42),
    Sketcher.Constraint("Equal", 42, 44),
    Sketcher.Constraint("Equal", 36, 46),
    Sketcher.Constraint("Equal", 34, 48),
    Sketcher.Constraint("Equal", 32, 50),
    Sketcher.Constraint("Equal", 50, 52),
    Sketcher.Constraint("Equal", 48, 54),
    Sketcher.Constraint("Equal", 46, 56),
    Sketcher.Constraint("Equal", 44, 58),
    Sketcher.Constraint("Equal", 58, 60),
    Sketcher.Constraint("Equal", 41, 61),
    Sketcher.Constraint("Equal", 60, 62),
    Sketcher.Constraint("Equal", 62, 64),
    Sketcher.Constraint("Equal", 56, 66),
    Sketcher.Constraint("Equal", 54, 68),
    Sketcher.Constraint("Equal", 52, 70),
    Sketcher.Constraint("Equal", 70, 72),
    Sketcher.Constraint("Equal", 68, 74),
    Sketcher.Constraint("Equal", 66, 76),
    Sketcher.Constraint("Equal", 64, 78),
    Sketcher.Constraint("Symmetric", 0, 3, 40, 3, -1, 1),
    Sketcher.Constraint("Symmetric", 1, 3, 41, 3, -1, 1),
    Sketcher.Constraint("Symmetric", 2, 3, 42, 3, -1, 1),
    Sketcher.Constraint("Symmetric", 4, 3, 44, 3, -1, 1),
    Sketcher.Constraint("Symmetric", 6, 3, 46, 3, -1, 1),
    Sketcher.Constraint("Symmetric", 10, 3, 50, 3, -1, 1),
    Sketcher.Constraint("Symmetric", 14, 3, 54, 3, -1, 1),
    Sketcher.Constraint("Symmetric", 18, 3, 58, 3, -1, 1),
    Sketcher.Constraint("Symmetric", 20, 3, 60, 3, -1, 1),
    Sketcher.Constraint("Symmetric", 21, 3, 61, 3, -1, 1),
    Sketcher.Constraint("Symmetric", 22, 3, 62, 3, -1, 1),
    Sketcher.Constraint("Symmetric", 24, 3, 64, 3, -1, 1),
    Sketcher.Constraint("Symmetric", 26, 3, 66, 3, -1, 1),
    Sketcher.Constraint("Symmetric", 30, 3, 70, 3, -1, 1),
    Sketcher.Constraint("Symmetric", 34, 3, 74, 3, -1, 1),
    Sketcher.Constraint("Symmetric", 38, 3, 78, 3, -1, 1),
    Sketcher.Constraint("Symmetric", 8, 3, 14, 3, -2),
    Sketcher.Constraint("Symmetric", 4, 3, 18, 3, -2),
    Sketcher.Constraint("Symmetric", 2, 3, 20, 3, -2),
    Sketcher.Constraint("Symmetric", 1, 3, 21, 3, -2),
    Sketcher.Constraint("Symmetric", 0, 3, 22, 3, -2),
    Sketcher.Constraint("Symmetric", 38, 3, 64, 3, -2),
    Sketcher.Constraint("Symmetric", 36, 3, 66, 3, -2),
    Sketcher.Constraint("Symmetric", 49, 2, 52, 1, -2),
    Sketcher.Constraint("Symmetric", 33, 2, 68, 1, -2),
    Sketcher.Constraint("Symmetric", 29, 2, 72, 1, -2),
    Sketcher.Constraint("Perpendicular", 9, 13),
    Sketcher.Constraint("Parallel", 13, 29),
    Sketcher.Constraint("Perpendicular", 29, 33),
    Sketcher.Constraint("Horizontal", 2, 3, 4, 3),
    Sketcher.Constraint("Horizontal", 26, 3, 76, 3),
    Sketcher.Constraint("Horizontal", 20, 3, 1, 2),
    Sketcher.Constraint("Horizontal", 1, 2, 2, 1),
    Sketcher.Constraint("Horizontal", 3, 2, 4, 1),
    Sketcher.Constraint("Horizontal", 17, 2, 18, 1),
    Sketcher.Constraint("Horizontal", 41, 2, 42, 1),
    Sketcher.Constraint("Horizontal", 57, 2, 58, 1),
    Sketcher.Constraint("Vertical", 22, 3, 24, 3),
    Sketcher.Constraint("Vertical", 16, 3, 46, 3),
    Sketcher.Constraint("Vertical", 6, 3, 56, 3),
    Sketcher.Constraint("Vertical", 78, 3, 0, 1),
    Sketcher.Constraint("Vertical", 21, 2, 22, 1),
    Sketcher.Constraint("Vertical", 23, 2, 24, 1),
    Sketcher.Constraint("Vertical", 37, 2, 38, 1),
    Sketcher.Constraint("Vertical", 61, 2, 62, 1),
    Sketcher.Constraint("Vertical", 77, 2, 78, 1),
    Sketcher.Constraint("Equal", 59, 23),
    Sketcher.Constraint("Equal", 57, 25),
    Sketcher.Constraint("Equal", 55, 27),
    Sketcher.Constraint("Equal", 51, 31),
    Sketcher.Constraint("Equal", 13, 29),
    Sketcher.Constraint("Radius", 0, Q("0.02 in")),
    Sketcher.Constraint("Radius", 8, Q("0.04 in")),
    Sketcher.Constraint("Diameter", 80, Q("0.205 in")),
    Sketcher.Constraint("Radius", 1, Q("0.083 in")),
    Sketcher.Constraint("Radius", 10, Q("0.125 in")),
    Sketcher.Constraint("DistanceX", 0, 3, -1, 1, Q("0.5 in")),
    Sketcher.Constraint("DistanceY", 2, 3, -1, 1, Q("0.5 in")),
    Sketcher.Constraint("Radius", 6, Q("0.0435 in")),
    Sketcher.Constraint("DistanceX", 11, 1, 11, 2, Q("0.1274 in")),
    Sketcher.Constraint("DistanceY", 0, 3, -1, 1, Q("0.396 in")),
    Sketcher.Constraint("DistanceX", 6, 3, -1, 1, Q("0.171 in")),
    Sketcher.Constraint("DistanceY", 10, 3, -1, 1, Q("0.302 in")),
    Sketcher.Constraint("DistanceX", 3, 1, 3, 2, 3.2173),
])
sketch1.setExpression("Constraints[199]", "Params.sketch1_radius")
sketch1.setExpression("Constraints[200]", "Params.sketch1_radius2")
sketch1.setExpression("Constraints[201]", "Params.sketch1_diameter")
sketch1.setExpression("Constraints[202]", "Params.sketch1_radius3")
sketch1.setExpression("Constraints[203]", "Params.sketch1_radius4")
pad1 = body.newObject("PartDesign::Pad", "Pad")
pad1.Profile = sketch1
pad1.setExpression("Length", "Params.pad1_length")
pad1.Reversed = True

doc.recompute()
